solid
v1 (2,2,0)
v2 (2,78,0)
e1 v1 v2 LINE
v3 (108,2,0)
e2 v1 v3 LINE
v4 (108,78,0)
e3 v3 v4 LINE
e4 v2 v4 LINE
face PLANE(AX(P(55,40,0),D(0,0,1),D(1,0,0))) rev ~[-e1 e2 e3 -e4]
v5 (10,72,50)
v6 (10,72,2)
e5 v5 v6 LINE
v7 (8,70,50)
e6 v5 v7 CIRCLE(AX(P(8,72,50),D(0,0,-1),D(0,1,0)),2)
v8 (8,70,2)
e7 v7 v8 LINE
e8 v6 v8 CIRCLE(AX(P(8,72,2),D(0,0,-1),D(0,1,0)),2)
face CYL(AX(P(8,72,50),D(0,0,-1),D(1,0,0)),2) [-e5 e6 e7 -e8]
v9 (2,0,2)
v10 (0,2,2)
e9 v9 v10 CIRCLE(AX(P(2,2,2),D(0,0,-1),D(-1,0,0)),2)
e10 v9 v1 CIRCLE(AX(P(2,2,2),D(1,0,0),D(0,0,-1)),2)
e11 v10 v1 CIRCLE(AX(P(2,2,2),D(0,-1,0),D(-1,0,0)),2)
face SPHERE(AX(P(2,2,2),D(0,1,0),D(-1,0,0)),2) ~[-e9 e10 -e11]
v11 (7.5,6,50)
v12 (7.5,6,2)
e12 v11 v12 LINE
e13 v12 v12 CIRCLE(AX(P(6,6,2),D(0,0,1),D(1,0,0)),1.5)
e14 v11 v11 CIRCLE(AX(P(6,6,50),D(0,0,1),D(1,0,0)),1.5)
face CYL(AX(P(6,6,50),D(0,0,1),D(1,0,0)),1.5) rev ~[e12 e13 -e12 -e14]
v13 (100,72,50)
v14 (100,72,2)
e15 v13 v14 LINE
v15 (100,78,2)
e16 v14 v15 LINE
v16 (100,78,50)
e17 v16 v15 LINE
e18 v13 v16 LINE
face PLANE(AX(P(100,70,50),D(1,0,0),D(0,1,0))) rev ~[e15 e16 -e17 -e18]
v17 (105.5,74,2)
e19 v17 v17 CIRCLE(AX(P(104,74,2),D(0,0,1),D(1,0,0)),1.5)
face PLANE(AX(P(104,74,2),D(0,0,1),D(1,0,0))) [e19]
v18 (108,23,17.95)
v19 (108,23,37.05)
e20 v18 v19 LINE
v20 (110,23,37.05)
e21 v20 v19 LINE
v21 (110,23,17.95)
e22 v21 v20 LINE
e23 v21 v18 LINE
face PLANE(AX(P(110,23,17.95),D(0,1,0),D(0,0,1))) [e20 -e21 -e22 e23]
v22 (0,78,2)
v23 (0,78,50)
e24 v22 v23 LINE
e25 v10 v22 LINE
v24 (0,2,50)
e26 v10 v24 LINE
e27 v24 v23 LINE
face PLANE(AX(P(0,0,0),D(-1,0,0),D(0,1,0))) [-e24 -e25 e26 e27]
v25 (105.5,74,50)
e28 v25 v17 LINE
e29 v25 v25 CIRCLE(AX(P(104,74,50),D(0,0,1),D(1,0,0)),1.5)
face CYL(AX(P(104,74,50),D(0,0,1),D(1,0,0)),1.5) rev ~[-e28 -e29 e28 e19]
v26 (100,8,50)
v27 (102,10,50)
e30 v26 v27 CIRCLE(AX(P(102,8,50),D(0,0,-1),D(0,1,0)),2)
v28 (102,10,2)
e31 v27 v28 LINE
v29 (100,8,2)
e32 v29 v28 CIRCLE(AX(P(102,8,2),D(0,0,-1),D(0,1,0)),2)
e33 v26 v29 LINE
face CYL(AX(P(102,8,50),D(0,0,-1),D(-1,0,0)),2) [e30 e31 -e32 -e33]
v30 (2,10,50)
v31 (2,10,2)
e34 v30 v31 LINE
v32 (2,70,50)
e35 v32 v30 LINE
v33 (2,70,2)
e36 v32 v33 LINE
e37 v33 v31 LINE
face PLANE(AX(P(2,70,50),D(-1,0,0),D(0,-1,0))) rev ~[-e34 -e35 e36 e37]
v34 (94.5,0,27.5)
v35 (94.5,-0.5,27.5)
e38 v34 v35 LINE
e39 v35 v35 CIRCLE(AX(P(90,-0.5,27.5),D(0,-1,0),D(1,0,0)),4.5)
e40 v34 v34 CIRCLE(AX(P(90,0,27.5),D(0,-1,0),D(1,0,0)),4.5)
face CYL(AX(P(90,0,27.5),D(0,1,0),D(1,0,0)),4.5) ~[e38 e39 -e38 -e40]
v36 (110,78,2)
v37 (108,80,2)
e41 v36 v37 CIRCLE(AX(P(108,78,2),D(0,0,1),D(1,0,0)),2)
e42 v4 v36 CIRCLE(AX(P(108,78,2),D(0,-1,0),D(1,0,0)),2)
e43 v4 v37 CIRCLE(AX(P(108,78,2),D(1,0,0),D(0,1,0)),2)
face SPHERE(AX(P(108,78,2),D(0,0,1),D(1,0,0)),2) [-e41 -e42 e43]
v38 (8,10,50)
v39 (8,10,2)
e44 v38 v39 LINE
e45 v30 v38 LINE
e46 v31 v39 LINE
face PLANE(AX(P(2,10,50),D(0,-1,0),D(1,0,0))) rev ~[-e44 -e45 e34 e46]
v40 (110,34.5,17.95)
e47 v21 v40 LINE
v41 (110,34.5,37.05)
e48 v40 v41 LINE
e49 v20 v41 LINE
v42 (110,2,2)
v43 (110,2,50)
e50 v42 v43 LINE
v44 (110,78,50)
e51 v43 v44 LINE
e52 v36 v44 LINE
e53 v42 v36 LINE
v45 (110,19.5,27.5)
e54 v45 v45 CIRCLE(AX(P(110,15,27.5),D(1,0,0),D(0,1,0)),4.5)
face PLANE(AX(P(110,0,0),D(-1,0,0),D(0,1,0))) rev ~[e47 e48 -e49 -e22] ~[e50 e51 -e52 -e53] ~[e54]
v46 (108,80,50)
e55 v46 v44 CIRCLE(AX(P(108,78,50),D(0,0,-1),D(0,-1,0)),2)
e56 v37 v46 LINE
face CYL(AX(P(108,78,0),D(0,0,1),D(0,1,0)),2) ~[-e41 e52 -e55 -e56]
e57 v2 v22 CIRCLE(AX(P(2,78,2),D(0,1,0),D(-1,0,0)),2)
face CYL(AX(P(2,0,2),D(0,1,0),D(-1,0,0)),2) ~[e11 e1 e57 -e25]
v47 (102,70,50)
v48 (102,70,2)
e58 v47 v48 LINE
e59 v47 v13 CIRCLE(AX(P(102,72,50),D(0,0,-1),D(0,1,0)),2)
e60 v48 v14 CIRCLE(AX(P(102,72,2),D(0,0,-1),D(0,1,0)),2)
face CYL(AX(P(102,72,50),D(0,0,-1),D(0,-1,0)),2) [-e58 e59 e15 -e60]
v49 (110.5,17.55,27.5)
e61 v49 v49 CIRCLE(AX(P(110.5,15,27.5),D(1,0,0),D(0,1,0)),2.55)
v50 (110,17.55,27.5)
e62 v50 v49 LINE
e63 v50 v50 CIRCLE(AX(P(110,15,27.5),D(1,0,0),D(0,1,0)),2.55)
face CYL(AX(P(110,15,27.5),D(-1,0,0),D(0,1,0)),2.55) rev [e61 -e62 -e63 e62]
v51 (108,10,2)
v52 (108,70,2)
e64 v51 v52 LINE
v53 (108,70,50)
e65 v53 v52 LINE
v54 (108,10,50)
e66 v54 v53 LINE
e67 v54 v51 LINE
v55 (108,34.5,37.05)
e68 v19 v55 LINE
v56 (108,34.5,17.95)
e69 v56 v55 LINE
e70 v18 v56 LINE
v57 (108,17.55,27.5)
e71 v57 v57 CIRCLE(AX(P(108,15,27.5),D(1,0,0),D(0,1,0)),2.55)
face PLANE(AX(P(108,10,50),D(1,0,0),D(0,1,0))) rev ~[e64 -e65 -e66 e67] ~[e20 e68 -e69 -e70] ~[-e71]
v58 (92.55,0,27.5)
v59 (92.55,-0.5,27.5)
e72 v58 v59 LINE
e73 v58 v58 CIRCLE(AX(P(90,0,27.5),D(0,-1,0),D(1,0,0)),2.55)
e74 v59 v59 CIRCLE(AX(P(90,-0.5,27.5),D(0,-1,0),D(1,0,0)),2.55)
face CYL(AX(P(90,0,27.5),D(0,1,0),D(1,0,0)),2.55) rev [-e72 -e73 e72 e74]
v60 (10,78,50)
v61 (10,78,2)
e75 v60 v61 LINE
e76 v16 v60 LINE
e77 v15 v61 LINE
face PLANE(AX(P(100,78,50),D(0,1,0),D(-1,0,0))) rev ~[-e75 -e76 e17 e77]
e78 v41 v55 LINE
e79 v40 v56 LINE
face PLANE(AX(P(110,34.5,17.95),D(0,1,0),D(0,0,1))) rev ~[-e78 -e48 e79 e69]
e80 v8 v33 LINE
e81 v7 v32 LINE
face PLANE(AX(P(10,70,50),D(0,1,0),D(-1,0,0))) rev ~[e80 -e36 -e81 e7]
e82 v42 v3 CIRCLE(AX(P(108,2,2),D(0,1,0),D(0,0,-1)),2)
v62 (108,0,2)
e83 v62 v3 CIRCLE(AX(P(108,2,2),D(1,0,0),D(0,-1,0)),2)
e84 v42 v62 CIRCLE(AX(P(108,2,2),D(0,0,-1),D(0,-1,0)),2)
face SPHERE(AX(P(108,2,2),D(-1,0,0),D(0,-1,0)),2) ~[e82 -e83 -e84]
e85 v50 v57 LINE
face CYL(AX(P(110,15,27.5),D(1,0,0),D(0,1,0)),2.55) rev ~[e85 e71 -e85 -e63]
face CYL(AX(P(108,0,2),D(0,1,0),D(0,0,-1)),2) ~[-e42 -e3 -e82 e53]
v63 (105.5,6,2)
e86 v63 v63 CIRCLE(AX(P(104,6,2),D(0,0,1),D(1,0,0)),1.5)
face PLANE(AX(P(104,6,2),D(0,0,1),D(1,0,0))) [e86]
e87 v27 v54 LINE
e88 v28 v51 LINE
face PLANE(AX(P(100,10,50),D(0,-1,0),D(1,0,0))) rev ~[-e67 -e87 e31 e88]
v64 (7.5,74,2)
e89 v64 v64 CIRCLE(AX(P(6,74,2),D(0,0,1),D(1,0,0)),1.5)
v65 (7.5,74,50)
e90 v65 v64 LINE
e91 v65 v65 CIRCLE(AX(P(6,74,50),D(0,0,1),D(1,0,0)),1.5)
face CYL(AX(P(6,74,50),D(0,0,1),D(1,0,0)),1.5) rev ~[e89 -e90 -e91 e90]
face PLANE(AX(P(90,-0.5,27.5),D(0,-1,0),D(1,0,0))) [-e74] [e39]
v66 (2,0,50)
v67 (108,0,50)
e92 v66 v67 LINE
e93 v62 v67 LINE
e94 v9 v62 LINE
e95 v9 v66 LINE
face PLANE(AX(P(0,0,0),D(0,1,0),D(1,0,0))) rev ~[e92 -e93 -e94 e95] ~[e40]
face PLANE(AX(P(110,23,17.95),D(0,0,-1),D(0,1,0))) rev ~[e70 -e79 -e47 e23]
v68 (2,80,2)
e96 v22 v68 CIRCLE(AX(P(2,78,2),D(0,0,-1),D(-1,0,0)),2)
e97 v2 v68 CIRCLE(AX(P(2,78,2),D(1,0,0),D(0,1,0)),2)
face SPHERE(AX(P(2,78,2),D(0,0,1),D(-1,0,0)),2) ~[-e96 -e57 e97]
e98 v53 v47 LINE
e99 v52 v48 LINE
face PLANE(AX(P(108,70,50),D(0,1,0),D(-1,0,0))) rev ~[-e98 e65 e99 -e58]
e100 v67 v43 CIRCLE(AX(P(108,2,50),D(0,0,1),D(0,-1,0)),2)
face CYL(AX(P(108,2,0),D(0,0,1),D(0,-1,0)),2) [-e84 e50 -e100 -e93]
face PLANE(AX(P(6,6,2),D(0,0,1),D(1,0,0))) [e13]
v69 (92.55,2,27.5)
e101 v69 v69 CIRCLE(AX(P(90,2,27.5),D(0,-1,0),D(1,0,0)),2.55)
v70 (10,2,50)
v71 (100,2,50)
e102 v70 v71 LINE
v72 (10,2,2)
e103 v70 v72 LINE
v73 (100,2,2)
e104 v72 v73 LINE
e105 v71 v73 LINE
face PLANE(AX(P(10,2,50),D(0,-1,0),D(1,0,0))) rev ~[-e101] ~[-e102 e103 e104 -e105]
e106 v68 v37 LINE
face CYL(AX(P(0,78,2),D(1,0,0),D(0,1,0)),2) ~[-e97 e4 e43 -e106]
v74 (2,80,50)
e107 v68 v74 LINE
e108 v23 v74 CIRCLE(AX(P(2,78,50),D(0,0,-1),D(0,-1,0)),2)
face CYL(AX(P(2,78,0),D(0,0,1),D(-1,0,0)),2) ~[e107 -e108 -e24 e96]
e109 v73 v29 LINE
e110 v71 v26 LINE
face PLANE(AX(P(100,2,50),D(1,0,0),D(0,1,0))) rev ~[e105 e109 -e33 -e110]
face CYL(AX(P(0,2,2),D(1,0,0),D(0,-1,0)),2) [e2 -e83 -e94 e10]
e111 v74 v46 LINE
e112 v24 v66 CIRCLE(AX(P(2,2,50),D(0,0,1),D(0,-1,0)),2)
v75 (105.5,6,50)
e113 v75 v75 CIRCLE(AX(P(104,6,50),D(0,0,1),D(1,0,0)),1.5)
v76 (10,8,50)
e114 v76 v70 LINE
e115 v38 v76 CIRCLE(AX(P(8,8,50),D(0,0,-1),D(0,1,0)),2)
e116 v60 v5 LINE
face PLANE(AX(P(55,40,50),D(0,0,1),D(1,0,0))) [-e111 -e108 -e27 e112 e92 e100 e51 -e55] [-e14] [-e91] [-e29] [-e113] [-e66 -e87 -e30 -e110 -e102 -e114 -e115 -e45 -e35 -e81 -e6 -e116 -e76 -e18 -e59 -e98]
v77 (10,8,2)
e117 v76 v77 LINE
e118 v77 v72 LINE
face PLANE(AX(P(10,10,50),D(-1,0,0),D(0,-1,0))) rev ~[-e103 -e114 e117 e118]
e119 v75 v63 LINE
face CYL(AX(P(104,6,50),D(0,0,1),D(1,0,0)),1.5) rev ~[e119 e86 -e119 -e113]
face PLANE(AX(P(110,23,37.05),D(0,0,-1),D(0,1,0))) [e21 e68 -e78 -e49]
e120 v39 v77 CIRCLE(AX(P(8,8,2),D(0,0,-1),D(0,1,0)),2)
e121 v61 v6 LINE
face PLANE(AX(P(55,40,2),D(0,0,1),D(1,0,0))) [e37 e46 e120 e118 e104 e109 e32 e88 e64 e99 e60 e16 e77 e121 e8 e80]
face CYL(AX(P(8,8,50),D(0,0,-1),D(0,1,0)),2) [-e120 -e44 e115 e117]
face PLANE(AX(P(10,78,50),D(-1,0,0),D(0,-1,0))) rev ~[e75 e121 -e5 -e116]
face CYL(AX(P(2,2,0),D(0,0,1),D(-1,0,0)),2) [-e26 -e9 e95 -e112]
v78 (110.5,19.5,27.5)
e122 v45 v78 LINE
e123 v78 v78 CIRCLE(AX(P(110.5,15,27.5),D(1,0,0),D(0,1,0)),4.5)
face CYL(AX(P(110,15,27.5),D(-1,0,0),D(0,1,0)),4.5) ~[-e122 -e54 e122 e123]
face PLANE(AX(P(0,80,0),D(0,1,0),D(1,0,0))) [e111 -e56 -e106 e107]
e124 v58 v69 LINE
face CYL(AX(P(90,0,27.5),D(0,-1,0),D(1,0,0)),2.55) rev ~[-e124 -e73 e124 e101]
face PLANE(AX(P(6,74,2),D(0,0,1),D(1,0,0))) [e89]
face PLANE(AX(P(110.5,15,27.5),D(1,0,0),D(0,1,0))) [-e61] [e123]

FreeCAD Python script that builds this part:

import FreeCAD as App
import Part
import Sketcher

V = App.Vector
Q = App.Units.Quantity


def edges_at(feature, points):
    """Names of the edges that pass closest to the given points."""
    edges = feature.Shape.Edges
    near = lambda p: min(range(len(edges)), key=lambda i: edges[i].distToShape(Part.Vertex(*p))[0])
    return sorted({f"Edge{near(p) + 1}" for p in points})


def add_polygon(sketch, points):
    """Adds a closed chain of lines whose ends are joined by coincident constraints."""
    first, n = sketch.GeometryCount, len(points)
    for a, b in zip(points, points[1:] + points[:1]):
        sketch.addGeometry(Part.LineSegment(App.Vector(*a, 0), App.Vector(*b, 0)), False)
    for i in range(n):
        sketch.addConstraint(Sketcher.Constraint("Coincident", first + i, 2, first + (i + 1) % n, 1))

doc = App.newDocument("Part")
body = doc.addObject("PartDesign::Body", "Body")

# Sketch on XY plane
sketch1 = body.newObject("Sketcher::SketchObject", "Sketch")
sketch1.AttachmentSupport = (doc.getObject("XY_Plane"), [""])
sketch1.MapMode = "FlatFace"
add_polygon(sketch1, [(0, 80), (0, 0), (110, 0), (110, 80)])  # lines 0-3
sketch1.addConstraint(Sketcher.Constraint("Vertical", 0))
sketch1.addConstraint(Sketcher.Constraint("Horizontal", 1))
sketch1.addConstraint(Sketcher.Constraint("Vertical", 2))
sketch1.addConstraint(Sketcher.Constraint("Horizontal", 3))
sketch1.addConstraint(Sketcher.Constraint("Coincident", 0, 2, -1, 1))
sketch1.addConstraint(Sketcher.Constraint("DistanceX", 1, 1, 1, 2, Q("110 mm")))
sketch1.addConstraint(Sketcher.Constraint("DistanceY", 0, 2, 0, 1, Q("80 mm")))
pad1 = body.newObject("PartDesign::Pad", "Pad")
pad1.Profile = sketch1
pad1.Length = 50

# Sketch on XY plane
sketch2 = body.newObject("Sketcher::SketchObject", "Sketch001")
sketch2.AttachmentSupport = (doc.getObject("XY_Plane"), [""])
sketch2.MapMode = "FlatFace"
sketch2.AttachmentOffset = App.Placement(V(0, 0, 50), App.Rotation())
sketch2.addGeometry(Part.Circle(V(6, 74, 0), V(0, 0, 1), 1.5), False)  # 0
sketch2.addGeometry(Part.Circle(V(104, 74, 0), V(0, 0, 1), 1.5), False)  # 1
sketch2.addGeometry(Part.Circle(V(104, 6, 0), V(0, 0, 1), 1.5), False)  # 2
sketch2.addGeometry(Part.Circle(V(6, 6, 0), V(0, 0, 1), 1.5), False)  # 3
add_polygon(sketch2, [(2, 10), (10, 10), (10, 2), (100, 2), (100, 10), (108, 10), (108, 70), (100, 70), (100, 78), (10, 78), (10, 70), (2, 70)])  # lines 4-15
sketch2.addConstraint(Sketcher.Constraint("Horizontal", 4))
sketch2.addConstraint(Sketcher.Constraint("Vertical", 5))
sketch2.addConstraint(Sketcher.Constraint("Horizontal", 6))
sketch2.addConstraint(Sketcher.Constraint("Vertical", 7))
sketch2.addConstraint(Sketcher.Constraint("Horizontal", 8))
sketch2.addConstraint(Sketcher.Constraint("Vertical", 9))
sketch2.addConstraint(Sketcher.Constraint("Horizontal", 10))
sketch2.addConstraint(Sketcher.Constraint("Vertical", 11))
sketch2.addConstraint(Sketcher.Constraint("Horizontal", 12))
sketch2.addConstraint(Sketcher.Constraint("Vertical", 13))
sketch2.addConstraint(Sketcher.Constraint("Horizontal", 14))
sketch2.addConstraint(Sketcher.Constraint("Vertical", 15))
sketch2.addConstraint(Sketcher.Constraint("Equal", 0, 1))
sketch2.addConstraint(Sketcher.Constraint("Equal", 1, 2))
sketch2.addConstraint(Sketcher.Constraint("Equal", 2, 3))
sketch2.addConstraint(Sketcher.Constraint("Horizontal", 0, 3, 1, 3))
sketch2.addConstraint(Sketcher.Constraint("Horizontal", 2, 3, 3, 3))
sketch2.addConstraint(Sketcher.Constraint("Horizontal", 4, 2, 7, 2))
sketch2.addConstraint(Sketcher.Constraint("Horizontal", 10, 2, 13, 2))
sketch2.addConstraint(Sketcher.Constraint("Vertical", 1, 3, 2, 3))
sketch2.addConstraint(Sketcher.Constraint("Vertical", 0, 3, 3, 3))
sketch2.addConstraint(Sketcher.Constraint("Vertical", 7, 2, 10, 2))
sketch2.addConstraint(Sketcher.Constraint("Vertical", 5, 2, 12, 2))
sketch2.addConstraint(Sketcher.Constraint("Equal", 4, 8))
sketch2.addConstraint(Sketcher.Constraint("Equal", 14, 5))
sketch2.addConstraint(Sketcher.Constraint("Equal", 7, 11))
sketch2.addConstraint(Sketcher.Constraint("Diameter", 0, Q("3 mm")))
sketch2.addConstraint(Sketcher.Constraint("DistanceX", 4, 1, 4, 2, Q("8 mm")))
sketch2.addConstraint(Sketcher.Constraint("DistanceX", 6, 1, 6, 2, Q("90 mm")))
sketch2.addConstraint(Sketcher.Constraint("DistanceY", 9, 1, 9, 2, Q("60 mm")))
sketch2.addConstraint(Sketcher.Constraint("DistanceX", -1, 1, 0, 3, Q("6 mm")))
sketch2.addConstraint(Sketcher.Constraint("DistanceY", -1, 1, 0, 3, Q("74 mm")))
sketch2.addConstraint(Sketcher.Constraint("DistanceX", -1, 1, 1, 3, Q("104 mm")))
sketch2.addConstraint(Sketcher.Constraint("DistanceY", -1, 1, 2, 3, Q("6 mm")))
sketch2.addConstraint(Sketcher.Constraint("DistanceX", -1, 1, 4, 2, Q("10 mm")))
sketch2.addConstraint(Sketcher.Constraint("DistanceY", -1, 1, 4, 2, Q("10 mm")))
pocket1 = body.newObject("PartDesign::Pocket", "Pocket")
pocket1.Profile = sketch2
pocket1.Length = 48
doc.recompute()

fillet = body.newObject("PartDesign::Fillet", "Fillet")
fillet.Base = (pocket1, edges_at(pocket1, [
    (0, 80, 25),
    (0, 40, 0),
    (0, 0, 25),
    (55, 0, 0),
    (110, 0, 25),
    (110, 80, 25),
    (110, 40, 0),
    (55, 80, 0),
]))
fillet.Radius = 2
doc.recompute()

fillet2 = body.newObject("PartDesign::Fillet", "Fillet001")
fillet2.Base = (fillet, edges_at(fillet, [
    (100, 10, 26),
    (100, 70, 26),
    (10, 70, 26),
    (10, 10, 26),
]))
fillet2.Radius = 2

# Sketch on YZ plane
sketch3 = body.newObject("Sketcher::SketchObject", "Sketch002")
sketch3.AttachmentSupport = (doc.getObject("YZ_Plane"), [""])
sketch3.MapMode = "FlatFace"
sketch3.AttachmentOffset = App.Placement(V(0, 0, 110), App.Rotation())
sketch3.addGeometry(Part.Circle(V(15, 27.5, 0), V(0, 0, 1), 2.5), False)  # 0
add_polygon(sketch3, [(23, 37), (23, 17.9), (34.5, 17.9), (34.5, 37)])  # lines 1-4
sketch3.addConstraint(Sketcher.Constraint("Vertical", 1))
sketch3.addConstraint(Sketcher.Constraint("Horizontal", 2))
sketch3.addConstraint(Sketcher.Constraint("Vertical", 3))
sketch3.addConstraint(Sketcher.Constraint("Horizontal", 4))
sketch3.addConstraint(Sketcher.Constraint("Diameter", 0, Q("5.1 mm")))
sketch3.addConstraint(Sketcher.Constraint("DistanceX", 2, 1, 2, 2, Q("11.5 mm")))
sketch3.addConstraint(Sketcher.Constraint("DistanceY", 1, 2, 1, 1, Q("19.1 mm")))
sketch3.addConstraint(Sketcher.Constraint("DistanceX", -1, 1, 0, 3, Q("15 mm")))
sketch3.addConstraint(Sketcher.Constraint("DistanceX", -1, 1, 1, 2, Q("23 mm")))
sketch3.addConstraint(Sketcher.Constraint("DistanceY", -1, 1, 0, 3, Q("27.5 mm")))
sketch3.addConstraint(Sketcher.Constraint("DistanceY", -1, 1, 1, 2, Q("17.95 mm")))
pocket2 = body.newObject("PartDesign::Pocket", "Pocket001")
pocket2.Profile = sketch3
pocket2.Length = 5

# Sketch on XZ plane
sketch4 = body.newObject("Sketcher::SketchObject", "Sketch003")
sketch4.AttachmentSupport = (doc.getObject("XZ_Plane"), [""])
sketch4.MapMode = "FlatFace"
sketch4.addGeometry(Part.Circle(V(90, 27.5, 0), V(0, 0, 1), 2.5), False)
sketch4.addConstraint(Sketcher.Constraint("Diameter", 0, Q("5.1 mm")))
sketch4.addConstraint(Sketcher.Constraint("DistanceX", -1, 1, 0, 3, Q("90 mm")))
sketch4.addConstraint(Sketcher.Constraint("DistanceY", -1, 1, 0, 3, Q("27.5 mm")))
pocket3 = body.newObject("PartDesign::Pocket", "Pocket002")
pocket3.Profile = sketch4
pocket3.Length = 5

# Sketch on YZ plane
sketch5 = body.newObject("Sketcher::SketchObject", "Sketch004")
sketch5.AttachmentSupport = (doc.getObject("YZ_Plane"), [""])
sketch5.MapMode = "FlatFace"
sketch5.AttachmentOffset = App.Placement(V(0, 0, 110), App.Rotation())
sketch5.addGeometry(Part.Circle(V(15, 27.5, 0), V(0, 0, 1), 4.5), False)
sketch5.addGeometry(Part.Circle(V(15, 27.5, 0), V(0, 0, 1), 2.5), False)
sketch5.addConstraint(Sketcher.Constraint("Coincident", 1, 3, 0, 3))
sketch5.addConstraint(Sketcher.Constraint("Diameter", 0, Q("9 mm")))
sketch5.addConstraint(Sketcher.Constraint("Diameter", 1, Q("5.1 mm")))
sketch5.addConstraint(Sketcher.Constraint("DistanceX", -1, 1, 0, 3, Q("15 mm")))
sketch5.addConstraint(Sketcher.Constraint("DistanceY", -1, 1, 0, 3, Q("27.5 mm")))
pad2 = body.newObject("PartDesign::Pad", "Pad001")
pad2.Profile = sketch5
pad2.Length = 0.5

# Sketch on XZ plane
sketch6 = body.newObject("Sketcher::SketchObject", "Sketch005")
sketch6.AttachmentSupport = (doc.getObject("XZ_Plane"), [""])
sketch6.MapMode = "FlatFace"
sketch6.addGeometry(Part.Circle(V(90, 27.5, 0), V(0, 0, 1), 4.5), False)
sketch6.addGeometry(Part.Circle(V(90, 27.5, 0), V(0, 0, 1), 2.5), False)
sketch6.addConstraint(Sketcher.Constraint("Coincident", 1, 3, 0, 3))
sketch6.addConstraint(Sketcher.Constraint("Diameter", 0, Q("9 mm")))
sketch6.addConstraint(Sketcher.Constraint("Diameter", 1, Q("5.1 mm")))
sketch6.addConstraint(Sketcher.Constraint("DistanceX", -1, 1, 0, 3, Q("90 mm")))
sketch6.addConstraint(Sketcher.Constraint("DistanceY", -1, 1, 0, 3, Q("27.5 mm")))
pad3 = body.newObject("PartDesign::Pad", "Pad002")
pad3.Profile = sketch6
pad3.Length = 0.5

doc.recompute()
